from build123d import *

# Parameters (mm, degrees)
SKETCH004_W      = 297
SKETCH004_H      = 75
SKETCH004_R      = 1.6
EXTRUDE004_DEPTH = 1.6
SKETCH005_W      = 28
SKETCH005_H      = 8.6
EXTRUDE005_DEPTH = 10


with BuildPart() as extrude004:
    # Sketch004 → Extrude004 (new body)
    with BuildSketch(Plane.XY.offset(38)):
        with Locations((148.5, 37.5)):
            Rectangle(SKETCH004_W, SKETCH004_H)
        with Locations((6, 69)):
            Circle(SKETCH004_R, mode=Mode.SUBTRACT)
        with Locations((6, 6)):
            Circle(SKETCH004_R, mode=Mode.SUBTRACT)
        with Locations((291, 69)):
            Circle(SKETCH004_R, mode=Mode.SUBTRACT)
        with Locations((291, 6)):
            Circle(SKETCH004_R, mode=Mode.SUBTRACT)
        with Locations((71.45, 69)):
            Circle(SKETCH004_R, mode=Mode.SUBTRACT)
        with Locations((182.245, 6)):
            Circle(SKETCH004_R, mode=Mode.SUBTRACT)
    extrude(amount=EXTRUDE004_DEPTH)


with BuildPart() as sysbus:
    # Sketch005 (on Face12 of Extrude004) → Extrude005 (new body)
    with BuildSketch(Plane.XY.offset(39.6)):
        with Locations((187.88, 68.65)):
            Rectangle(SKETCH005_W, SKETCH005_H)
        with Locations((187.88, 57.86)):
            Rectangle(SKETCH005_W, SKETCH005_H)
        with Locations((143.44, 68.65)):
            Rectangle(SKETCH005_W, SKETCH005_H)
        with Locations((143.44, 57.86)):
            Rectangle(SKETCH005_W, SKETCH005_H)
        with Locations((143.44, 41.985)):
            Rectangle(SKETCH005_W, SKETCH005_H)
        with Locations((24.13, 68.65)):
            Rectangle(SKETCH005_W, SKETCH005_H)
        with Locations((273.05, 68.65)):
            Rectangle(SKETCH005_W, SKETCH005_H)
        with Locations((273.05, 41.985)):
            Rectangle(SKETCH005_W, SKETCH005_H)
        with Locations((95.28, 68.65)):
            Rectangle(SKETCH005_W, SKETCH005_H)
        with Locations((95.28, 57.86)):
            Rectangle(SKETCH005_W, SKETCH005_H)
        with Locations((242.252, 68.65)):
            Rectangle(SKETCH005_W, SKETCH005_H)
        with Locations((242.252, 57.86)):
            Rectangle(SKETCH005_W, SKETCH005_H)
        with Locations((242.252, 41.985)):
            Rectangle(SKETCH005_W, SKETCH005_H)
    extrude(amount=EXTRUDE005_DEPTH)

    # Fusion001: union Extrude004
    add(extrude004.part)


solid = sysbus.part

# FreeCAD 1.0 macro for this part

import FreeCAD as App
import Part
import Sketcher

V = App.Vector

doc = App.newDocument("Part")
params = doc.addObject("Spreadsheet::Sheet", "Params")
for row, (alias, value) in enumerate([
    ("sketch1_diameter", "3.2 mm"),
    ("sketch1_width", "297 mm"),
    ("sketch1_height", "75 mm"),
    ("pad1_length", "1.6 mm"),
    ("sketch2_width", "28 mm"),
    ("sketch2_height", "8.6 mm"),
    ("pad2_length", "10 mm"),
], start=1):
    params.set(f"A{row}", alias)
    params.set(f"B{row}", "=" + value)
    params.setAlias(f"B{row}", alias)

body = doc.addObject("PartDesign::Body", "Body")

sketch1 = body.newObject("Sketcher::SketchObject", "Sketch")
sketch1.AttachmentSupport = (doc.getObject("XY_Plane"), [""])
sketch1.MapMode = "FlatFace"
sketch1.AttachmentOffset = App.Placement(V(0, 0, 38), App.Rotation())
sketch1.addGeometry([
    Part.LineSegment(V(0, 75, 0), V(0, 0, 0)),
    Part.LineSegment(V(0, 0, 0), V(297, 0, 0)),
    Part.LineSegment(V(297, 0, 0), V(297, 75, 0)),
    Part.LineSegment(V(297, 75, 0), V(0, 75, 0)),
    Part.Circle(V(6, 6, 0), V(0, 0, 1), 1.6),
    Part.Circle(V(182.2, 6, 0), V(0, 0, 1), 1.6),
    Part.Circle(V(291, 6, 0), V(0, 0, 1), 1.6),
    Part.Circle(V(6, 69, 0), V(0, 0, 1), 1.6),
    Part.Circle(V(71.5, 69, 0), V(0, 0, 1), 1.6),
    Part.Circle(V(291, 69, 0), V(0, 0, 1), 1.6),
], False)
sketch1.addConstraint([
    Sketcher.Constraint("Coincident", 0, 2, 1, 1),
    Sketcher.Constraint("Coincident", 1, 2, 2, 1),
    Sketcher.Constraint("Coincident", 2, 2, 3, 1),
    Sketcher.Constraint("Coincident", 3, 2, 0, 1),
    Sketcher.Constraint("Vertical", 0),
    Sketcher.Constraint("Horizontal", 1),
    Sketcher.Constraint("Vertical", 2),
    Sketcher.Constraint("Horizontal", 3),
    Sketcher.Constraint("Coincident", 0, 2, -1, 1),
    Sketcher.Constraint("Equal", 4, 5),
    Sketcher.Constraint("Equal", 5, 6),
    Sketcher.Constraint("Equal", 6, 7),
    Sketcher.Constraint("Equal", 7, 8),
    Sketcher.Constraint("Equal", 8, 9),
    Sketcher.Constraint("Horizontal", 4, 3, 5, 3),
    Sketcher.Constraint("Horizontal", 5, 3, 6, 3),
    Sketcher.Constraint("Horizontal", 7, 3, 8, 3),
    Sketcher.Constraint("Horizontal", 8, 3, 9, 3),
    Sketcher.Constraint("Vertical", 4, 3, 7, 3),
    Sketcher.Constraint("Vertical", 6, 3, 9, 3),
    Sketcher.Constraint("Diameter", 4, 3.2),
    Sketcher.Constraint("DistanceX", 1, 1, 1, 2, 297.0),
    Sketcher.Constraint("DistanceY", 0, 2, 0, 1, 75.0),
    Sketcher.Constraint("DistanceX", -1, 1, 4, 3, 6.0),
    Sketcher.Constraint("DistanceY", -1, 1, 4, 3, 6.0),
    Sketcher.Constraint("DistanceX", -1, 1, 6, 3, 291.0),
    Sketcher.Constraint("DistanceY", -1, 1, 7, 3, 69.0),
    Sketcher.Constraint("DistanceX", -1, 1, 8, 3, 71.45),
    Sketcher.Constraint("DistanceX", -1, 1, 5, 3, 182.245),
])
sketch1.setExpression("Constraints[20]", "Params.sketch1_diameter")
sketch1.setExpression("Constraints[21]", "Params.sketch1_width")
sketch1.setExpression("Constraints[22]", "Params.sketch1_height")
pad1 = body.newObject("PartDesign::Pad", "Pad")
pad1.Profile = sketch1
pad1.setExpression("Length", "Params.pad1_length")
body2 = doc.addObject("PartDesign::Body", "Body001")
body2.AllowCompound = True

sketch2 = body2.newObject("Sketcher::SketchObject", "Sketch001")
sketch2.AttachmentSupport = (doc.getObject("XY_Plane001"), [""])
sketch2.MapMode = "FlatFace"
sketch2.AttachmentOffset = App.Placement(V(0, 0, 39.6), App.Rotation())
sketch2.addGeometry([
    Part.LineSegment(V(174, 73, 0), V(174, 64, 0)),
    Part.LineSegment(V(174, 64, 0), V(202, 64, 0)),
    Part.LineSegment(V(202, 64, 0), V(202, 73, 0)),
    Part.LineSegment(V(202, 73, 0), V(174, 73, 0)),
    Part.LineSegment(V(174, 62, 0), V(174, 54, 0)),
    Part.LineSegment(V(174, 54, 0), V(202, 54, 0)),
    Part.LineSegment(V(202, 54, 0), V(202, 62, 0)),
    Part.LineSegment(V(202, 62, 0), V(174, 62, 0)),
    Part.LineSegment(V(129, 73, 0), V(129, 64, 0)),
    Part.LineSegment(V(129, 64, 0), V(157, 64, 0)),
    Part.LineSegment(V(157, 64, 0), V(157, 73, 0)),
    Part.LineSegment(V(157, 73, 0), V(129, 73, 0)),
    Part.LineSegment(V(129, 62, 0), V(129, 54, 0)),
    Part.LineSegment(V(129, 54, 0), V(157, 54, 0)),
    Part.LineSegment(V(157, 54, 0), V(157, 62, 0)),
    Part.LineSegment(V(157, 62, 0), V(129, 62, 0)),
    Part.LineSegment(V(129, 46, 0), V(129, 38, 0)),
    Part.LineSegment(V(129, 38, 0), V(157, 38, 0)),
    Part.LineSegment(V(157, 38, 0), V(157, 46, 0)),
    Part.LineSegment(V(157, 46, 0), V(129, 46, 0)),
    Part.LineSegment(V(10, 73, 0), V(10, 64, 0)),
    Part.LineSegment(V(10, 64, 0), V(38, 64, 0)),
    Part.LineSegment(V(38, 64, 0), V(38, 73, 0)),
    Part.LineSegment(V(38, 73, 0), V(10, 73, 0)),
    Part.LineSegment(V(259, 73, 0), V(259, 64, 0)),
    Part.LineSegment(V(259, 64, 0), V(287, 64, 0)),
    Part.LineSegment(V(287, 64, 0), V(287, 73, 0)),
    Part.LineSegment(V(287, 73, 0), V(259, 73, 0)),
    Part.LineSegment(V(259, 46, 0), V(259, 38, 0)),
    Part.LineSegment(V(259, 38, 0), V(287, 38, 0)),
    Part.LineSegment(V(287, 38, 0), V(287, 46, 0)),
    Part.LineSegment(V(287, 46, 0), V(259, 46, 0)),
    Part.LineSegment(V(81, 73, 0), V(81, 64, 0)),
    Part.LineSegment(V(81, 64, 0), V(109, 64, 0)),
    Part.LineSegment(V(109, 64, 0), V(109, 73, 0)),
    Part.LineSegment(V(109, 73, 0), V(81, 73, 0)),
    Part.LineSegment(V(81, 62, 0), V(81, 54, 0)),
    Part.LineSegment(V(81, 54, 0), V(109, 54, 0)),
    Part.LineSegment(V(109, 54, 0), V(109, 62, 0)),
    Part.LineSegment(V(109, 62, 0), V(81, 62, 0)),
    Part.LineSegment(V(228, 73, 0), V(228, 64, 0)),
    Part.LineSegment(V(228, 64, 0), V(256, 64, 0)),
    Part.LineSegment(V(256, 64, 0), V(256, 73, 0)),
    Part.LineSegment(V(256, 73, 0), V(228, 73, 0)),
    Part.LineSegment(V(228, 62, 0), V(228, 54, 0)),
    Part.LineSegment(V(228, 54, 0), V(256, 54, 0)),
    Part.LineSegment(V(256, 54, 0), V(256, 62, 0)),
    Part.LineSegment(V(256, 62, 0), V(228, 62, 0)),
    Part.LineSegment(V(228, 46, 0), V(228, 38, 0)),
    Part.LineSegment(V(228, 38, 0), V(256, 38, 0)),
    Part.LineSegment(V(256, 38, 0), V(256, 46, 0)),
    Part.LineSegment(V(256, 46, 0), V(228, 46, 0)),
], False)
sketch2.addConstraint([
    Sketcher.Constraint("Coincident", 0, 2, 1, 1),
    Sketcher.Constraint("Coincident", 1, 2, 2, 1),
    Sketcher.Constraint("Coincident", 2, 2, 3, 1),
    Sketcher.Constraint("Coincident", 3, 2, 0, 1),
    Sketcher.Constraint("Coincident", 4, 2, 5, 1),
    Sketcher.Constraint("Coincident", 5, 2, 6, 1),
    Sketcher.Constraint("Coincident", 6, 2, 7, 1),
    Sketcher.Constraint("Coincident", 7, 2, 4, 1),
    Sketcher.Constraint("Coincident", 8, 2, 9, 1),
    Sketcher.Constraint("Coincident", 9, 2, 10, 1),
    Sketcher.Constraint("Coincident", 10, 2, 11, 1),
    Sketcher.Constraint("Coincident", 11, 2, 8, 1),
    Sketcher.Constraint("Coincident", 12, 2, 13, 1),
    Sketcher.Constraint("Coincident", 13, 2, 14, 1),
    Sketcher.Constraint("Coincident", 14, 2, 15, 1),
    Sketcher.Constraint("Coincident", 15, 2, 12, 1),
    Sketcher.Constraint("Coincident", 16, 2, 17, 1),
    Sketcher.Constraint("Coincident", 17, 2, 18, 1),
    Sketcher.Constraint("Coincident", 18, 2, 19, 1),
    Sketcher.Constraint("Coincident", 19, 2, 16, 1),
    Sketcher.Constraint("Coincident", 20, 2, 21, 1),
    Sketcher.Constraint("Coincident", 21, 2, 22, 1),
    Sketcher.Constraint("Coincident", 22, 2, 23, 1),
    Sketcher.Constraint("Coincident", 23, 2, 20, 1),
    Sketcher.Constraint("Coincident", 24, 2, 25, 1),
    Sketcher.Constraint("Coincident", 25, 2, 26, 1),
    Sketcher.Constraint("Coincident", 26, 2, 27, 1),
    Sketcher.Constraint("Coincident", 27, 2, 24, 1),
    Sketcher.Constraint("Coincident", 28, 2, 29, 1),
    Sketcher.Constraint("Coincident", 29, 2, 30, 1),
    Sketcher.Constraint("Coincident", 30, 2, 31, 1),
    Sketcher.Constraint("Coincident", 31, 2, 28, 1),
    Sketcher.Constraint("Coincident", 32, 2, 33, 1),
    Sketcher.Constraint("Coincident", 33, 2, 34, 1),
    Sketcher.Constraint("Coincident", 34, 2, 35, 1),
    Sketcher.Constraint("Coincident", 35, 2, 32, 1),
    Sketcher.Constraint("Coincident", 36, 2, 37, 1),
    Sketcher.Constraint("Coincident", 37, 2, 38, 1),
    Sketcher.Constraint("Coincident", 38, 2, 39, 1),
    Sketcher.Constraint("Coincident", 39, 2, 36, 1),
    Sketcher.Constraint("Coincident", 40, 2, 41, 1),
    Sketcher.Constraint("Coincident", 41, 2, 42, 1),
    Sketcher.Constraint("Coincident", 42, 2, 43, 1),
    Sketcher.Constraint("Coincident", 43, 2, 40, 1),
    Sketcher.Constraint("Coincident", 44, 2, 45, 1),
    Sketcher.Constraint("Coincident", 45, 2, 46, 1),
    Sketcher.Constraint("Coincident", 46, 2, 47, 1),
    Sketcher.Constraint("Coincident", 47, 2, 44, 1),
    Sketcher.Constraint("Coincident", 48, 2, 49, 1),
    Sketcher.Constraint("Coincident", 49, 2, 50, 1),
    Sketcher.Constraint("Coincident", 50, 2, 51, 1),
    Sketcher.Constraint("Coincident", 51, 2, 48, 1),
    Sketcher.Constraint("Vertical", 0),
    Sketcher.Constraint("Horizontal", 1),
    Sketcher.Constraint("Vertical", 2),
    Sketcher.Constraint("Horizontal", 3),
    Sketcher.Constraint("Vertical", 4),
    Sketcher.Constraint("Horizontal", 5),
    Sketcher.Constraint("Vertical", 6),
    Sketcher.Constraint("Horizontal", 7),
    Sketcher.Constraint("Vertical", 8),
    Sketcher.Constraint("Horizontal", 9),
    Sketcher.Constraint("Vertical", 10),
    Sketcher.Constraint("Horizontal", 11),
    Sketcher.Constraint("Vertical", 12),
    Sketcher.Constraint("Horizontal", 13),
    Sketcher.Constraint("Vertical", 14),
    Sketcher.Constraint("Horizontal", 15),
    Sketcher.Constraint("Vertical", 16),
    Sketcher.Constraint("Horizontal", 17),
    Sketcher.Constraint("Vertical", 18),
    Sketcher.Constraint("Horizontal", 19),
    Sketcher.Constraint("Vertical", 20),
    Sketcher.Constraint("Horizontal", 21),
    Sketcher.Constraint("Vertical", 22),
    Sketcher.Constraint("Horizontal", 23),
    Sketcher.Constraint("Vertical", 24),
    Sketcher.Constraint("Horizontal", 25),
    Sketcher.Constraint("Vertical", 26),
    Sketcher.Constraint("Horizontal", 27),
    Sketcher.Constraint("Vertical", 28),
    Sketcher.Constraint("Horizontal", 29),
    Sketcher.Constraint("Vertical", 30),
    Sketcher.Constraint("Horizontal", 31),
    Sketcher.Constraint("Vertical", 32),
    Sketcher.Constraint("Horizontal", 33),
    Sketcher.Constraint("Vertical", 34),
    Sketcher.Constraint("Horizontal", 35),
    Sketcher.Constraint("Vertical", 36),
    Sketcher.Constraint("Horizontal", 37),
    Sketcher.Constraint("Vertical", 38),
    Sketcher.Constraint("Horizontal", 39),
    Sketcher.Constraint("Vertical", 40),
    Sketcher.Constraint("Horizontal", 41),
    Sketcher.Constraint("Vertical", 42),
    Sketcher.Constraint("Horizontal", 43),
    Sketcher.Constraint("Vertical", 44),
    Sketcher.Constraint("Horizontal", 45),
    Sketcher.Constraint("Vertical", 46),
    Sketcher.Constraint("Horizontal", 47),
    Sketcher.Constraint("Vertical", 48),
    Sketcher.Constraint("Horizontal", 49),
    Sketcher.Constraint("Vertical", 50),
    Sketcher.Constraint("Horizontal", 51),
    Sketcher.Constraint("Horizontal", 1, 2, 8, 2),
    Sketcher.Constraint("Horizontal", 3, 2, 10, 2),
    Sketcher.Constraint("Horizontal", 5, 2, 12, 2),
    Sketcher.Constraint("Horizontal", 7, 2, 14, 2),
    Sketcher.Constraint("Horizontal", 9, 2, 20, 2),
    Sketcher.Constraint("Horizontal", 11, 2, 22, 2),
    Sketcher.Constraint("Horizontal", 21, 2, 24, 2),
    Sketcher.Constraint("Horizontal", 23, 2, 26, 2),
    Sketcher.Constraint("Horizontal", 17, 2, 28, 2),
    Sketcher.Constraint("Horizontal", 19, 2, 30, 2),
    Sketcher.Constraint("Horizontal", 25, 2, 32, 2),
    Sketcher.Constraint("Horizontal", 27, 2, 34, 2),
    Sketcher.Constraint("Horizontal", 13, 2, 36, 2),
    Sketcher.Constraint("Horizontal", 15, 2, 38, 2),
    Sketcher.Constraint("Horizontal", 33, 2, 40, 2),
    Sketcher.Constraint("Horizontal", 35, 2, 42, 2),
    Sketcher.Constraint("Horizontal", 37, 2, 44, 2),
    Sketcher.Constraint("Horizontal", 39, 2, 46, 2),
    Sketcher.Constraint("Horizontal", 29, 2, 48, 2),
    Sketcher.Constraint("Horizontal", 31, 2, 50, 2),
    Sketcher.Constraint("Vertical", 3, 2, 4, 2),
    Sketcher.Constraint("Vertical", 2, 2, 5, 2),
    Sketcher.Constraint("Vertical", 11, 2, 12, 2),
    Sketcher.Constraint("Vertical", 10, 2, 13, 2),
    Sketcher.Constraint("Vertical", 15, 2, 16, 2),
    Sketcher.Constraint("Vertical", 14, 2, 17, 2),
    Sketcher.Constraint("Vertical", 27, 2, 28, 2),
    Sketcher.Constraint("Vertical", 26, 2, 29, 2),
    Sketcher.Constraint("Vertical", 35, 2, 36, 2),
    Sketcher.Constraint("Vertical", 34, 2, 37, 2),
    Sketcher.Constraint("Vertical", 43, 2, 44, 2),
    Sketcher.Constraint("Vertical", 42, 2, 45, 2),
    Sketcher.Constraint("Vertical", 47, 2, 48, 2),
    Sketcher.Constraint("Vertical", 46, 2, 49, 2),
    Sketcher.Constraint("Equal", 7, 9),
    Sketcher.Constraint("Equal", 19, 21),
    Sketcher.Constraint("Equal", 23, 25),
    Sketcher.Constraint("Equal", 31, 33),
    Sketcher.Constraint("Equal", 39, 41),
    Sketcher.Constraint("Equal", 2, 4),
    Sketcher.Constraint("Equal", 14, 16),
    Sketcher.Constraint("DistanceX", 1, 1, 1, 2, 28.0),
    Sketcher.Constraint("DistanceY", 0, 2, 0, 1, 8.6),
    Sketcher.Constraint("DistanceX", -1, 1, 0, 2, 173.88),
    Sketcher.Constraint("DistanceY", -1, 1, 0, 2, 64.35),
    Sketcher.Constraint("DistanceY", -1, 1, 4, 2, 53.56),
    Sketcher.Constraint("DistanceX", -1, 1, 8, 2, 129.44),
    Sketcher.Constraint("DistanceX", -1, 1, 20, 2, 10.13),
    Sketcher.Constraint("DistanceX", -1, 1, 24, 2, 259.05),
    Sketcher.Constraint("DistanceX", -1, 1, 32, 2, 81.28),
    Sketcher.Constraint("DistanceY", -1, 1, 16, 2, 37.685),
    Sketcher.Constraint("DistanceX", -1, 1, 40, 2, 228.252),
])
sketch2.setExpression("Constraints[145]", "Params.sketch2_width")
sketch2.setExpression("Constraints[146]", "Params.sketch2_height")
pad2 = body2.newObject("PartDesign::Pad", "Pad001")
pad2.Profile = sketch2
pad2.setExpression("Length", "Params.pad2_length")
doc.recompute()

boolean = body2.newObject("PartDesign::Boolean", "Boolean")
boolean.Type = "Fuse"
boolean.addObjects([body])

doc.recompute()
